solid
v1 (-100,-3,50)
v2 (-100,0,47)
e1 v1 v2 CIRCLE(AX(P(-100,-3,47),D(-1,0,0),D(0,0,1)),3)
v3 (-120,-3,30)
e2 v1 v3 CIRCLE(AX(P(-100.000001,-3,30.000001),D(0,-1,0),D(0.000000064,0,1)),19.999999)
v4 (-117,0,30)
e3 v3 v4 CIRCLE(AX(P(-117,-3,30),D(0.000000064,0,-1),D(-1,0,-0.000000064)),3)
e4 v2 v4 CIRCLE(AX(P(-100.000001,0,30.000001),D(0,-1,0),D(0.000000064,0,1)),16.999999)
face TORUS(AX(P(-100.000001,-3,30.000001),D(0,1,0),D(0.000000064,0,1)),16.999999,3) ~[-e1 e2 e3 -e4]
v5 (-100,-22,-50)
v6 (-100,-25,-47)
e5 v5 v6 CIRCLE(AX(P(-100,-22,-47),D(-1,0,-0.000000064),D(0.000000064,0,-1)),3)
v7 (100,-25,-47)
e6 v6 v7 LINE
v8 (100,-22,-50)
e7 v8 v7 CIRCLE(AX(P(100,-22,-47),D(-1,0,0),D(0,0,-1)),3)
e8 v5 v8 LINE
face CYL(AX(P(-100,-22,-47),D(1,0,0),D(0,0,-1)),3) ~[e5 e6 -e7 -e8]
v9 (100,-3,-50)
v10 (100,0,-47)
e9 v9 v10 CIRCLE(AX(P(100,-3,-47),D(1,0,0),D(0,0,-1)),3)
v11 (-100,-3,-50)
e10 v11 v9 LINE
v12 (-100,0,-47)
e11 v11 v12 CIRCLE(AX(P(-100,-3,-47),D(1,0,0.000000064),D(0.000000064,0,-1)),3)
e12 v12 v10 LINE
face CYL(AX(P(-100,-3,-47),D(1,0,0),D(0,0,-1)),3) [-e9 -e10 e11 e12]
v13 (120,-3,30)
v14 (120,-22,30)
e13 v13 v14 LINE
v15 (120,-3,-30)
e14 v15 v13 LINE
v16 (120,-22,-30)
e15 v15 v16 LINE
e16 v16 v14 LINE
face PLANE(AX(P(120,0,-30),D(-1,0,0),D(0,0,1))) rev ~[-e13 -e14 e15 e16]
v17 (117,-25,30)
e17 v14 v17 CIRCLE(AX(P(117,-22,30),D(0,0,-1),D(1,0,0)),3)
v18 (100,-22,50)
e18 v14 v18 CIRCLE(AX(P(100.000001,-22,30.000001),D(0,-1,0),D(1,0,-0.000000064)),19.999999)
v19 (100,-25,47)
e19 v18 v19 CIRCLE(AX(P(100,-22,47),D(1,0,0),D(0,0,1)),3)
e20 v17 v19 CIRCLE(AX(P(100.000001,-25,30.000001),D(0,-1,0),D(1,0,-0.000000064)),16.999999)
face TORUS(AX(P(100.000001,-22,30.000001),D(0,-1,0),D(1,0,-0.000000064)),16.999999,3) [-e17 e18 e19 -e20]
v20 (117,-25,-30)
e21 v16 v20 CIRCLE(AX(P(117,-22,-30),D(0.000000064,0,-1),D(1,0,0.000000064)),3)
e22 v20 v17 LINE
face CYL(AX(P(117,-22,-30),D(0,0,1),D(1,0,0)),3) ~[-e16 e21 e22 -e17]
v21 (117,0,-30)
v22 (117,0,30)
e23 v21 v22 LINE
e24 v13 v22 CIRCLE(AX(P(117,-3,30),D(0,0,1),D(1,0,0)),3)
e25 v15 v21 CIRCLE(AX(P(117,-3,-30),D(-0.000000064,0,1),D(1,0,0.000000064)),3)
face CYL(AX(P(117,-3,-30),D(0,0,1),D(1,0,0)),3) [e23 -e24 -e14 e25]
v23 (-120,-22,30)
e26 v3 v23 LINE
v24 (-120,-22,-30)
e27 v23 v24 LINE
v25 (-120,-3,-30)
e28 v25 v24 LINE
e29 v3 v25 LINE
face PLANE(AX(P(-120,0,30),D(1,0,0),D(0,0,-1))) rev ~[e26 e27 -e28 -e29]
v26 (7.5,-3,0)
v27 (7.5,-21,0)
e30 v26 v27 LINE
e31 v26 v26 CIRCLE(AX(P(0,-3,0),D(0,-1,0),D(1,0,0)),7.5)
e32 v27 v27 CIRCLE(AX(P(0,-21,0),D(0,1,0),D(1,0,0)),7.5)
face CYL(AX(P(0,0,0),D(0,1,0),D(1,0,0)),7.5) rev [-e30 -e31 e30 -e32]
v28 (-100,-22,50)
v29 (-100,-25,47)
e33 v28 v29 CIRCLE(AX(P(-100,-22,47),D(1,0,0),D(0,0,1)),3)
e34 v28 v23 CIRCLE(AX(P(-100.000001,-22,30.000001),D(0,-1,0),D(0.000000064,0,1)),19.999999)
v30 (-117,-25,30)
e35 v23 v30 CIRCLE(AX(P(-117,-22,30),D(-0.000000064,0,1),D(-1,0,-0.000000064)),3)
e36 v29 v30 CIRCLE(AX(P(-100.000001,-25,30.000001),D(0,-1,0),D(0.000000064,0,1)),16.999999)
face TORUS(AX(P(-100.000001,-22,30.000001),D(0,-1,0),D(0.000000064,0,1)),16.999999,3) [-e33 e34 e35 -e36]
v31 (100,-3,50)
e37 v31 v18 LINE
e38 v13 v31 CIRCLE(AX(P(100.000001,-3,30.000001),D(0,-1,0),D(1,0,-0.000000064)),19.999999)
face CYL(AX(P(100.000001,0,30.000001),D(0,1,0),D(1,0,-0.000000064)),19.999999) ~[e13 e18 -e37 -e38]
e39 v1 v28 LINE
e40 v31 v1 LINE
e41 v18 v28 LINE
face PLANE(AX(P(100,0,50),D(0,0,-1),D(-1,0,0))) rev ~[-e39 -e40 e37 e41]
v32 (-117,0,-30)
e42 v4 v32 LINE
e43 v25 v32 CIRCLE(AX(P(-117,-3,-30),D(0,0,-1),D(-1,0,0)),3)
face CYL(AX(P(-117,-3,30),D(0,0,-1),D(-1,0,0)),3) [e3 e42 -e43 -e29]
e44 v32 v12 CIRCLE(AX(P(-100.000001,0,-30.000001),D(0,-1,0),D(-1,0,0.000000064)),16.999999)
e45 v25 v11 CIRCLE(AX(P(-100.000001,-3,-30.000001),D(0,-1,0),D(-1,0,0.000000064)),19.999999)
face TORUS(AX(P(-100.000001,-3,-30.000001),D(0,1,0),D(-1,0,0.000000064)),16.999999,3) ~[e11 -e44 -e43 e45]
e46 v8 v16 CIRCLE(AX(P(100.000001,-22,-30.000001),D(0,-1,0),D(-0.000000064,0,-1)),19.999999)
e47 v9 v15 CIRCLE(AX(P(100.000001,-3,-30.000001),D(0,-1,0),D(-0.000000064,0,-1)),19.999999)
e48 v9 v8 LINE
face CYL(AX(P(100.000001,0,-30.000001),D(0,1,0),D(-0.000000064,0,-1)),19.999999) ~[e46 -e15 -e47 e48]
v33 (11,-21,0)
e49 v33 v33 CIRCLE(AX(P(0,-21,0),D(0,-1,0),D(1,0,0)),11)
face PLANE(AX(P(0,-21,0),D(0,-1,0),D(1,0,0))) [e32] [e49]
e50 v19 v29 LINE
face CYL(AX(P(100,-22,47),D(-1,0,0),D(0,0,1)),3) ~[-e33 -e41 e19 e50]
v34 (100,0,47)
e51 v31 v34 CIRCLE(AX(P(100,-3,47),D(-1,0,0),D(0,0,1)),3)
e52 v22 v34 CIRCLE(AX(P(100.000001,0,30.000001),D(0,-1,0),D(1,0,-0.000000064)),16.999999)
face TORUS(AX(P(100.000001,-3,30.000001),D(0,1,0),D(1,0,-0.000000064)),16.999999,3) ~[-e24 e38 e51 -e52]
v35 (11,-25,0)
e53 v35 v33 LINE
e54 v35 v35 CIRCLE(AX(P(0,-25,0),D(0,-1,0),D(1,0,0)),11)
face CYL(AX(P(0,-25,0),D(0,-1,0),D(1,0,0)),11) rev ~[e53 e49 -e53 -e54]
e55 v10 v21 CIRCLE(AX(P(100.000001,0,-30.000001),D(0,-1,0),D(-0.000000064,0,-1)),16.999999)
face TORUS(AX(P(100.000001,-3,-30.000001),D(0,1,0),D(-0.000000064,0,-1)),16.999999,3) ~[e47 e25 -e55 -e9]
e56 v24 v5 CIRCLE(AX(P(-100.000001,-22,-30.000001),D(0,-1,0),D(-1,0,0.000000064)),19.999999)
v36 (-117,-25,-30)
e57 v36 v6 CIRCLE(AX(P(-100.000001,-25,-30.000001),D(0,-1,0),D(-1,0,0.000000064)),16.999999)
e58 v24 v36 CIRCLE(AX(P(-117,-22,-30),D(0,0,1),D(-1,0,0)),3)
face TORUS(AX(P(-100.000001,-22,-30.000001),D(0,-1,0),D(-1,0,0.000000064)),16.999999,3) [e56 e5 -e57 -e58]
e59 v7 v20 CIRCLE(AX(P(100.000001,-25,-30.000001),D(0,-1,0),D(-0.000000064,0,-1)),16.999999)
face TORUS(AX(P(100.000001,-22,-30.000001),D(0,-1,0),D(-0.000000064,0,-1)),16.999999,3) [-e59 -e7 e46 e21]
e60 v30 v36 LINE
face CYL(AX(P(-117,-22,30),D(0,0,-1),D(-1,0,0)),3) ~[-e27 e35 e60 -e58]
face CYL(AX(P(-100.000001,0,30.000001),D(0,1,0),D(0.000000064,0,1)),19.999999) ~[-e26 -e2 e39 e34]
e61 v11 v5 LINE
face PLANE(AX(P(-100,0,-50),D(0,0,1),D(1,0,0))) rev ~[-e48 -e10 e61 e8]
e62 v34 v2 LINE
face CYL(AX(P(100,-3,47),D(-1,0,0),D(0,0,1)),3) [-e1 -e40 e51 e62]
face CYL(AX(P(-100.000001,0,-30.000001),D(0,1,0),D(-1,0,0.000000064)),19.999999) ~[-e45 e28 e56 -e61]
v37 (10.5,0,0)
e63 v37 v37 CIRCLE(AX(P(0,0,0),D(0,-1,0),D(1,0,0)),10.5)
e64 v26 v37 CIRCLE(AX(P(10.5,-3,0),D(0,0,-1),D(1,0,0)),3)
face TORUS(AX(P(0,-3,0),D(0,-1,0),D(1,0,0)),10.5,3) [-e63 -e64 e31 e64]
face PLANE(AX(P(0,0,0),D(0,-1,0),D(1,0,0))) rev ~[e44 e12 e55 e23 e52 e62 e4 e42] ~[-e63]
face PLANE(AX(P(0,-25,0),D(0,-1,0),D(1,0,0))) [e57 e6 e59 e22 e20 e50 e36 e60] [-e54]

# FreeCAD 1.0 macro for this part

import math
import FreeCAD as App
import Part
import Sketcher

V = App.Vector
Q = App.Units.Quantity


def edges_at(feature, points):
    """Names of the edges that pass closest to the given points."""
    edges = feature.Shape.Edges
    near = lambda p: min(range(len(edges)), key=lambda i: edges[i].distToShape(Part.Vertex(*p))[0])
    return sorted({f"Edge{near(p) + 1}" for p in points})

doc = App.newDocument("Part")
params = doc.addObject("Spreadsheet::Sheet", "Params")
for row, (alias, value) in enumerate([
    ("sketch1_diameter", "15 mm"),
    ("sketch1_radius", "19.999999 mm"),
    ("sketch1_width", "200 mm"),
    ("sketch1_height", "60 mm"),
    ("pad1_length", "25 mm"),
    ("fillet_radius", "3 mm"),
    ("sketch2_diameter", "22 mm"),
    ("pocket1_length", "4 mm"),
], start=1):
    params.set(f"A{row}", alias)
    params.set(f"B{row}", "=" + value)
    params.setAlias(f"B{row}", alias)

body = doc.addObject("PartDesign::Body", "Body")

# Sketch on XZ plane
sketch1 = body.newObject("Sketcher::SketchObject", "Sketch")
sketch1.AttachmentSupport = (doc.getObject("XZ_Plane"), [""])
sketch1.MapMode = "FlatFace"
sketch1.addGeometry([
    Part.LineSegment(V(100, 50, 0), V(-100, 50, 0)),  # 0
    Part.ArcOfCircle(Part.Circle(V(-100.000001, 30.000001, 0), V(0, 0, 1), 19.999999), math.radians(89.999996), math.radians(180.000004)),  # 1
    Part.LineSegment(V(-120, 30, 0), V(-120, -30, 0)),  # 2
    Part.ArcOfCircle(Part.Circle(V(-100.000001, -30.000001, 0), V(0, 0, 1), 19.999999), math.radians(179.999996), math.radians(270.000004)),  # 3
    Part.LineSegment(V(-100, -50, 0), V(100, -50, 0)),  # 4
    Part.ArcOfCircle(Part.Circle(V(100.000001, -30.000001, 0), V(0, 0, 1), 19.999999), math.radians(-90.000004), math.radians(0.000004)),  # 5
    Part.LineSegment(V(120, -30, 0), V(120, 30, 0)),  # 6
    Part.ArcOfCircle(Part.Circle(V(100.000001, 30.000001, 0), V(0, 0, 1), 19.999999), math.radians(-0.000004), math.radians(90.000004)),  # 7
    Part.Circle(V(0, 0, 0), V(0, 0, 1), 7.5),  # 8
], False)
sketch1.addConstraint([
    Sketcher.Constraint("Tangent", 0, 2, 1, 1),
    Sketcher.Constraint("Tangent", 1, 2, 2, 1),
    Sketcher.Constraint("Tangent", 2, 2, 3, 1),
    Sketcher.Constraint("Tangent", 3, 2, 4, 1),
    Sketcher.Constraint("Tangent", 4, 2, 5, 1),
    Sketcher.Constraint("Tangent", 5, 2, 6, 1),
    Sketcher.Constraint("Tangent", 6, 2, 7, 1),
    Sketcher.Constraint("Tangent", 7, 2, 0, 1),
    Sketcher.Constraint("Horizontal", 0),
    Sketcher.Constraint("Vertical", 2),
    Sketcher.Constraint("Horizontal", 4),
    Sketcher.Constraint("Vertical", 6),
    Sketcher.Constraint("Coincident", 8, 3, -1, 1),
    Sketcher.Constraint("Equal", 1, 3),
    Sketcher.Constraint("Equal", 3, 5),
    Sketcher.Constraint("Equal", 5, 7),
    Sketcher.Constraint("Symmetric", 1, 3, 5, 3, -1, 1),
    Sketcher.Constraint("Diameter", 8, Q("15 mm")),
    Sketcher.Constraint("Radius", 1, Q("19.999999 mm")),
    Sketcher.Constraint("DistanceX", 0, 2, 0, 1, Q("200 mm")),
    Sketcher.Constraint("DistanceY", 2, 2, 2, 1, Q("60 mm")),
])
sketch1.setExpression("Constraints[17]", "Params.sketch1_diameter")
sketch1.setExpression("Constraints[18]", "Params.sketch1_radius")
sketch1.setExpression("Constraints[19]", "Params.sketch1_width")
sketch1.setExpression("Constraints[20]", "Params.sketch1_height")
pad1 = body.newObject("PartDesign::Pad", "Pad")
pad1.Profile = sketch1
pad1.setExpression("Length", "Params.pad1_length")
doc.recompute()

fillet = body.newObject("PartDesign::Fillet", "Fillet")
fillet.Base = (pad1, edges_at(pad1, [
    (0, -25, 50),
    (0, 0, 50),
    (-114.142, 0, 44.142),
    (-120, 0, 0),
    (-114.142, 0, -44.142),
    (0, 0, -50),
    (114.142, 0, -44.142),
    (120, 0, 0),
    (114.142, 0, 44.142),
    (-7.5, 0, 0),
]))
fillet.setExpression("Radius", "Params.fillet_radius")

# Sketch on XZ plane
sketch2 = body.newObject("Sketcher::SketchObject", "Sketch001")
sketch2.AttachmentSupport = (doc.getObject("XZ_Plane"), [""])
sketch2.MapMode = "FlatFace"
sketch2.AttachmentOffset = App.Placement(V(0, 0, 25), App.Rotation())
sketch2.addGeometry(Part.Circle(V(0, 0, 0), V(0, 0, 1), 11), False)
sketch2.addConstraint([
    Sketcher.Constraint("Coincident", 0, 3, -1, 1),
    Sketcher.Constraint("Diameter", 0, Q("22 mm")),
])
sketch2.setExpression("Constraints[1]", "Params.sketch2_diameter")
pocket1 = body.newObject("PartDesign::Pocket", "Pocket")
pocket1.Profile = sketch2
pocket1.setExpression("Length", "Params.pocket1_length")

doc.recompute()
